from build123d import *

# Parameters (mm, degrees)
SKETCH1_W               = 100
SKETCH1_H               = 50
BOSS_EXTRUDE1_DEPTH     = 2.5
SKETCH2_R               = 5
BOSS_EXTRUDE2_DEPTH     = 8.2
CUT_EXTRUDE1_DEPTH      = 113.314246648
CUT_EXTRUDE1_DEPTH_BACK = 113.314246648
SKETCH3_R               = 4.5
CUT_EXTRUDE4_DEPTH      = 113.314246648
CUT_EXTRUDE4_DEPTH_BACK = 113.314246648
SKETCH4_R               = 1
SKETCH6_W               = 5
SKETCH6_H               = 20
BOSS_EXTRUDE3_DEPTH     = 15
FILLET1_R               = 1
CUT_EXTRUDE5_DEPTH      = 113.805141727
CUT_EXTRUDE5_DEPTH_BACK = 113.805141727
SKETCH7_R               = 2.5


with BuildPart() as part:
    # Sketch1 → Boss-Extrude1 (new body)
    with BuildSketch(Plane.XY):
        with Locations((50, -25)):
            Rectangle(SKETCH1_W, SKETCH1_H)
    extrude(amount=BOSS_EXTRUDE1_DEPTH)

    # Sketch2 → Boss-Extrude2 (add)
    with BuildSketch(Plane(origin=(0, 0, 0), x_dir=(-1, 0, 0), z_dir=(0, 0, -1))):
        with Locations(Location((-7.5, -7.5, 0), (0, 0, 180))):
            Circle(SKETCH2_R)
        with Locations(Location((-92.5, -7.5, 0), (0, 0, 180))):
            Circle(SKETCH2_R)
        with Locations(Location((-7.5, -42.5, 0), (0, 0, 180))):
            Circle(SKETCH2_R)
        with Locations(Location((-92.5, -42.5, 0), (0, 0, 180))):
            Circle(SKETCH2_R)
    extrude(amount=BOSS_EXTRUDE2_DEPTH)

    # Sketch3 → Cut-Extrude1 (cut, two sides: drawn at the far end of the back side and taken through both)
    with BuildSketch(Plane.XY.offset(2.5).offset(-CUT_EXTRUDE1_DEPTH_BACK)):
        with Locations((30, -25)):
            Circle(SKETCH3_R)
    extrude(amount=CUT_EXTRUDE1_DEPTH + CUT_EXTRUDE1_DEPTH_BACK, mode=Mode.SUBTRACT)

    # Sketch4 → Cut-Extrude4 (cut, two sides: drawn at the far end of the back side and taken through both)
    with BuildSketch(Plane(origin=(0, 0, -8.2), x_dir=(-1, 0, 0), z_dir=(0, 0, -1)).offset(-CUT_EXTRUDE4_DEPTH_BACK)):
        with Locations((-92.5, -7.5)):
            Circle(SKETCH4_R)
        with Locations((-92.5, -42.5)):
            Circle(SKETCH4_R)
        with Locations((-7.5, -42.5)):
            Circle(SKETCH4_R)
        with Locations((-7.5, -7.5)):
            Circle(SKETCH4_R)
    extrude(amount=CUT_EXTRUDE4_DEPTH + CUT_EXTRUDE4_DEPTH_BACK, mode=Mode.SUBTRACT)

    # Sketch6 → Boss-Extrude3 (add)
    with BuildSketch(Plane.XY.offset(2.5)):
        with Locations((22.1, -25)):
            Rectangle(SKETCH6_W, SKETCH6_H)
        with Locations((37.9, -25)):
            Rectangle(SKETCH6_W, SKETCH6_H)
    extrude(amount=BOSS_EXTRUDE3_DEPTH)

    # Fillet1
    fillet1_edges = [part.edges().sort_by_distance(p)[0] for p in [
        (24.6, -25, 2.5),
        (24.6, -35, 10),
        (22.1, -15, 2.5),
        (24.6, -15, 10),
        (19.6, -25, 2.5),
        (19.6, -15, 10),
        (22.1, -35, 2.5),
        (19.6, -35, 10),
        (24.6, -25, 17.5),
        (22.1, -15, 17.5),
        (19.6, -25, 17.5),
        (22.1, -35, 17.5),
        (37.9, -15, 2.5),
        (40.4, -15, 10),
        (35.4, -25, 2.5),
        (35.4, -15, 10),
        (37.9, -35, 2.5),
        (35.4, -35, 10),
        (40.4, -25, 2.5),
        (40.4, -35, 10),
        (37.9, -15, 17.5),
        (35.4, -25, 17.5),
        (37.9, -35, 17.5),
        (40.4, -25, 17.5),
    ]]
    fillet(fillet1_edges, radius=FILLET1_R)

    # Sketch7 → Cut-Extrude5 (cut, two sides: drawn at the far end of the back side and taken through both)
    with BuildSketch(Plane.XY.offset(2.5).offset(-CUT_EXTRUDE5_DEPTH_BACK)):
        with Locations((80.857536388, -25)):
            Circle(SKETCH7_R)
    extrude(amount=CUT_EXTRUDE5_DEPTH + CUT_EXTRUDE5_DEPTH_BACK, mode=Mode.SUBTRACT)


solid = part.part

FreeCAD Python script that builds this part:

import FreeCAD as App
import Part
import Sketcher

V = App.Vector


def edges_at(feature, points):
    """Names of the edges that pass closest to the given points."""
    edges = feature.Shape.Edges
    near = lambda p: min(range(len(edges)), key=lambda i: edges[i].distToShape(Part.Vertex(*p))[0])
    return sorted({f"Edge{near(p) + 1}" for p in points})


def add_polygon(sketch, points):
    """Adds a closed chain of lines whose ends are joined by coincident constraints."""
    first, n = sketch.GeometryCount, len(points)
    for a, b in zip(points, points[1:] + points[:1]):
        sketch.addGeometry(Part.LineSegment(App.Vector(*a, 0), App.Vector(*b, 0)), False)
    for i in range(n):
        sketch.addConstraint(Sketcher.Constraint("Coincident", first + i, 2, first + (i + 1) % n, 1))

doc = App.newDocument("Part")
body = doc.addObject("PartDesign::Body", "Body")

# Sketch on XY plane
sketch1 = body.newObject("Sketcher::SketchObject", "Sketch")
sketch1.AttachmentSupport = (doc.getObject("XY_Plane"), [""])
sketch1.MapMode = "FlatFace"
add_polygon(sketch1, [(0, 0), (0, -50), (100, -50), (100, 0)])  # lines 0-3
sketch1.addConstraint([
    Sketcher.Constraint("Vertical", 0),
    Sketcher.Constraint("Horizontal", 1),
    Sketcher.Constraint("Vertical", 2),
    Sketcher.Constraint("Horizontal", 3),
    Sketcher.Constraint("Coincident", 3, 2, -1, 1),
    Sketcher.Constraint("DistanceX", 1, 1, 1, 2, 100.0),
    Sketcher.Constraint("DistanceY", 0, 2, 0, 1, 50.0),
])
pad1 = body.newObject("PartDesign::Pad", "Pad")
pad1.Profile = sketch1
pad1.Length = 2.5

# Sketch on XY plane
sketch2 = body.newObject("Sketcher::SketchObject", "Sketch001")
sketch2.AttachmentSupport = (doc.getObject("XY_Plane"), [""])
sketch2.MapMode = "FlatFace"
sketch2.addGeometry([
    Part.Circle(V(8, -8, 0), V(0, 0, 1), 5),
    Part.Circle(V(92, -8, 0), V(0, 0, 1), 5),
    Part.Circle(V(8, -42, 0), V(0, 0, 1), 5),
    Part.Circle(V(92, -42, 0), V(0, 0, 1), 5),
], False)
sketch2.addConstraint([
    Sketcher.Constraint("Equal", 0, 1),
    Sketcher.Constraint("Equal", 1, 2),
    Sketcher.Constraint("Equal", 2, 3),
    Sketcher.Constraint("Horizontal", 0, 3, 1, 3),
    Sketcher.Constraint("Horizontal", 2, 3, 3, 3),
    Sketcher.Constraint("Vertical", 0, 3, 2, 3),
    Sketcher.Constraint("Vertical", 1, 3, 3, 3),
    Sketcher.Constraint("Diameter", 0, 10.0),
    Sketcher.Constraint("DistanceX", 0, 3, 1, 3, 85.0),
    Sketcher.Constraint("DistanceY", 2, 3, 0, 3, 35.0),
    Sketcher.Constraint("DistanceX", -1, 1, 0, 3, 7.5),
    Sketcher.Constraint("DistanceY", 0, 3, -1, 1, 7.5),
])
pad2 = body.newObject("PartDesign::Pad", "Pad001")
pad2.Profile = sketch2
pad2.Length = 8.2
pad2.Reversed = True

# Sketch on XY plane
sketch3 = body.newObject("Sketcher::SketchObject", "Sketch002")
sketch3.AttachmentSupport = (doc.getObject("XY_Plane"), [""])
sketch3.MapMode = "FlatFace"
sketch3.AttachmentOffset = App.Placement(V(0, 0, 2.5), App.Rotation())
sketch3.addGeometry(Part.Circle(V(30, -25, 0), V(0, 0, 1), 4.5), False)
sketch3.addConstraint([
    Sketcher.Constraint("Diameter", 0, 9.0),
    Sketcher.Constraint("DistanceX", -1, 1, 0, 3, 30.0),
    Sketcher.Constraint("DistanceY", 0, 3, -1, 1, 25.0),
])
pocket1 = body.newObject("PartDesign::Pocket", "Pocket")
pocket1.Profile = sketch3
pocket1.Type = "ThroughAll"
pocket1.Midplane = True

# Sketch on XY plane
sketch4 = body.newObject("Sketcher::SketchObject", "Sketch003")
sketch4.AttachmentSupport = (doc.getObject("XY_Plane"), [""])
sketch4.MapMode = "FlatFace"
sketch4.AttachmentOffset = App.Placement(V(0, 0, -8.2), App.Rotation())
sketch4.addGeometry([
    Part.Circle(V(92.5, -7.5, 0), V(0, 0, 1), 1),
    Part.Circle(V(92.5, -42.5, 0), V(0, 0, 1), 1),
    Part.Circle(V(7.5, -42.5, 0), V(0, 0, 1), 1),
    Part.Circle(V(7.5, -7.5, 0), V(0, 0, 1), 1),
], False)
sketch4.addConstraint([
    Sketcher.Constraint("Equal", 0, 1),
    Sketcher.Constraint("Equal", 1, 2),
    Sketcher.Constraint("Equal", 2, 3),
    Sketcher.Constraint("Horizontal", 1, 3, 2, 3),
    Sketcher.Constraint("Horizontal", 0, 3, 3, 3),
    Sketcher.Constraint("Vertical", 0, 3, 1, 3),
    Sketcher.Constraint("Vertical", 2, 3, 3, 3),
    Sketcher.Constraint("Diameter", 0, 2.0),
    Sketcher.Constraint("DistanceY", 1, 3, 0, 3, 35.0),
    Sketcher.Constraint("DistanceX", 2, 3, 1, 3, 85.0),
    Sketcher.Constraint("DistanceX", -1, 1, 0, 3, 92.5),
    Sketcher.Constraint("DistanceY", 0, 3, -1, 1, 7.5),
])
pocket2 = body.newObject("PartDesign::Pocket", "Pocket001")
pocket2.Profile = sketch4
pocket2.Type = "ThroughAll"
pocket2.Midplane = True

# Sketch on XY plane
sketch5 = body.newObject("Sketcher::SketchObject", "Sketch004")
sketch5.AttachmentSupport = (doc.getObject("XY_Plane"), [""])
sketch5.MapMode = "FlatFace"
sketch5.AttachmentOffset = App.Placement(V(0, 0, 2.5), App.Rotation())
add_polygon(sketch5, [(20, -15), (20, -35), (25, -35), (25, -15)])  # lines 0-3
add_polygon(sketch5, [(35, -15), (35, -35), (40, -35), (40, -15)])  # lines 4-7
sketch5.addConstraint([
    Sketcher.Constraint("Vertical", 0),
    Sketcher.Constraint("Horizontal", 1),
    Sketcher.Constraint("Vertical", 2),
    Sketcher.Constraint("Horizontal", 3),
    Sketcher.Constraint("Vertical", 4),
    Sketcher.Constraint("Horizontal", 5),
    Sketcher.Constraint("Vertical", 6),
    Sketcher.Constraint("Horizontal", 7),
    Sketcher.Constraint("Horizontal", 1, 2, 4, 2),
    Sketcher.Constraint("Horizontal", 3, 2, 6, 2),
    Sketcher.Constraint("Equal", 3, 5),
    Sketcher.Constraint("DistanceX", 1, 1, 1, 2, 5.0),
    Sketcher.Constraint("DistanceY", 0, 2, 0, 1, 20.0),
    Sketcher.Constraint("DistanceY", 0, 2, -1, 1, 35.0),
    Sketcher.Constraint("DistanceX", -1, 1, 0, 2, 19.6),
    Sketcher.Constraint("DistanceX", -1, 1, 4, 2, 35.4),
])
pad3 = body.newObject("PartDesign::Pad", "Pad002")
pad3.Profile = sketch5
pad3.Length = 15
doc.recompute()

fillet = body.newObject("PartDesign::Fillet", "Fillet")
fillet.Base = (pad3, edges_at(pad3, [
    (24.6, -25, 2.5),
    (24.6, -35, 10),
    (22.1, -15, 2.5),
    (24.6, -15, 10),
    (19.6, -25, 2.5),
    (19.6, -15, 10),
    (22.1, -35, 2.5),
    (19.6, -35, 10),
    (24.6, -25, 17.5),
    (22.1, -15, 17.5),
    (19.6, -25, 17.5),
    (22.1, -35, 17.5),
    (37.9, -15, 2.5),
    (40.4, -15, 10),
    (35.4, -25, 2.5),
    (35.4, -15, 10),
    (37.9, -35, 2.5),
    (35.4, -35, 10),
    (40.4, -25, 2.5),
    (40.4, -35, 10),
    (37.9, -15, 17.5),
    (35.4, -25, 17.5),
    (37.9, -35, 17.5),
    (40.4, -25, 17.5),
]))
fillet.Radius = 1

# Sketch on XY plane
sketch6 = body.newObject("Sketcher::SketchObject", "Sketch005")
sketch6.AttachmentSupport = (doc.getObject("XY_Plane"), [""])
sketch6.MapMode = "FlatFace"
sketch6.AttachmentOffset = App.Placement(V(0, 0, 2.5), App.Rotation())
sketch6.addGeometry(Part.Circle(V(80.9, -25, 0), V(0, 0, 1), 2.5), False)
sketch6.addConstraint([
    Sketcher.Constraint("Diameter", 0, 5.0),
    Sketcher.Constraint("DistanceY", 0, 3, -1, 1, 25.0),
    Sketcher.Constraint("DistanceX", -1, 1, 0, 3, 80.857536),
])
pocket3 = body.newObject("PartDesign::Pocket", "Pocket002")
pocket3.Profile = sketch6
pocket3.Type = "ThroughAll"
pocket3.Midplane = True

doc.recompute()
